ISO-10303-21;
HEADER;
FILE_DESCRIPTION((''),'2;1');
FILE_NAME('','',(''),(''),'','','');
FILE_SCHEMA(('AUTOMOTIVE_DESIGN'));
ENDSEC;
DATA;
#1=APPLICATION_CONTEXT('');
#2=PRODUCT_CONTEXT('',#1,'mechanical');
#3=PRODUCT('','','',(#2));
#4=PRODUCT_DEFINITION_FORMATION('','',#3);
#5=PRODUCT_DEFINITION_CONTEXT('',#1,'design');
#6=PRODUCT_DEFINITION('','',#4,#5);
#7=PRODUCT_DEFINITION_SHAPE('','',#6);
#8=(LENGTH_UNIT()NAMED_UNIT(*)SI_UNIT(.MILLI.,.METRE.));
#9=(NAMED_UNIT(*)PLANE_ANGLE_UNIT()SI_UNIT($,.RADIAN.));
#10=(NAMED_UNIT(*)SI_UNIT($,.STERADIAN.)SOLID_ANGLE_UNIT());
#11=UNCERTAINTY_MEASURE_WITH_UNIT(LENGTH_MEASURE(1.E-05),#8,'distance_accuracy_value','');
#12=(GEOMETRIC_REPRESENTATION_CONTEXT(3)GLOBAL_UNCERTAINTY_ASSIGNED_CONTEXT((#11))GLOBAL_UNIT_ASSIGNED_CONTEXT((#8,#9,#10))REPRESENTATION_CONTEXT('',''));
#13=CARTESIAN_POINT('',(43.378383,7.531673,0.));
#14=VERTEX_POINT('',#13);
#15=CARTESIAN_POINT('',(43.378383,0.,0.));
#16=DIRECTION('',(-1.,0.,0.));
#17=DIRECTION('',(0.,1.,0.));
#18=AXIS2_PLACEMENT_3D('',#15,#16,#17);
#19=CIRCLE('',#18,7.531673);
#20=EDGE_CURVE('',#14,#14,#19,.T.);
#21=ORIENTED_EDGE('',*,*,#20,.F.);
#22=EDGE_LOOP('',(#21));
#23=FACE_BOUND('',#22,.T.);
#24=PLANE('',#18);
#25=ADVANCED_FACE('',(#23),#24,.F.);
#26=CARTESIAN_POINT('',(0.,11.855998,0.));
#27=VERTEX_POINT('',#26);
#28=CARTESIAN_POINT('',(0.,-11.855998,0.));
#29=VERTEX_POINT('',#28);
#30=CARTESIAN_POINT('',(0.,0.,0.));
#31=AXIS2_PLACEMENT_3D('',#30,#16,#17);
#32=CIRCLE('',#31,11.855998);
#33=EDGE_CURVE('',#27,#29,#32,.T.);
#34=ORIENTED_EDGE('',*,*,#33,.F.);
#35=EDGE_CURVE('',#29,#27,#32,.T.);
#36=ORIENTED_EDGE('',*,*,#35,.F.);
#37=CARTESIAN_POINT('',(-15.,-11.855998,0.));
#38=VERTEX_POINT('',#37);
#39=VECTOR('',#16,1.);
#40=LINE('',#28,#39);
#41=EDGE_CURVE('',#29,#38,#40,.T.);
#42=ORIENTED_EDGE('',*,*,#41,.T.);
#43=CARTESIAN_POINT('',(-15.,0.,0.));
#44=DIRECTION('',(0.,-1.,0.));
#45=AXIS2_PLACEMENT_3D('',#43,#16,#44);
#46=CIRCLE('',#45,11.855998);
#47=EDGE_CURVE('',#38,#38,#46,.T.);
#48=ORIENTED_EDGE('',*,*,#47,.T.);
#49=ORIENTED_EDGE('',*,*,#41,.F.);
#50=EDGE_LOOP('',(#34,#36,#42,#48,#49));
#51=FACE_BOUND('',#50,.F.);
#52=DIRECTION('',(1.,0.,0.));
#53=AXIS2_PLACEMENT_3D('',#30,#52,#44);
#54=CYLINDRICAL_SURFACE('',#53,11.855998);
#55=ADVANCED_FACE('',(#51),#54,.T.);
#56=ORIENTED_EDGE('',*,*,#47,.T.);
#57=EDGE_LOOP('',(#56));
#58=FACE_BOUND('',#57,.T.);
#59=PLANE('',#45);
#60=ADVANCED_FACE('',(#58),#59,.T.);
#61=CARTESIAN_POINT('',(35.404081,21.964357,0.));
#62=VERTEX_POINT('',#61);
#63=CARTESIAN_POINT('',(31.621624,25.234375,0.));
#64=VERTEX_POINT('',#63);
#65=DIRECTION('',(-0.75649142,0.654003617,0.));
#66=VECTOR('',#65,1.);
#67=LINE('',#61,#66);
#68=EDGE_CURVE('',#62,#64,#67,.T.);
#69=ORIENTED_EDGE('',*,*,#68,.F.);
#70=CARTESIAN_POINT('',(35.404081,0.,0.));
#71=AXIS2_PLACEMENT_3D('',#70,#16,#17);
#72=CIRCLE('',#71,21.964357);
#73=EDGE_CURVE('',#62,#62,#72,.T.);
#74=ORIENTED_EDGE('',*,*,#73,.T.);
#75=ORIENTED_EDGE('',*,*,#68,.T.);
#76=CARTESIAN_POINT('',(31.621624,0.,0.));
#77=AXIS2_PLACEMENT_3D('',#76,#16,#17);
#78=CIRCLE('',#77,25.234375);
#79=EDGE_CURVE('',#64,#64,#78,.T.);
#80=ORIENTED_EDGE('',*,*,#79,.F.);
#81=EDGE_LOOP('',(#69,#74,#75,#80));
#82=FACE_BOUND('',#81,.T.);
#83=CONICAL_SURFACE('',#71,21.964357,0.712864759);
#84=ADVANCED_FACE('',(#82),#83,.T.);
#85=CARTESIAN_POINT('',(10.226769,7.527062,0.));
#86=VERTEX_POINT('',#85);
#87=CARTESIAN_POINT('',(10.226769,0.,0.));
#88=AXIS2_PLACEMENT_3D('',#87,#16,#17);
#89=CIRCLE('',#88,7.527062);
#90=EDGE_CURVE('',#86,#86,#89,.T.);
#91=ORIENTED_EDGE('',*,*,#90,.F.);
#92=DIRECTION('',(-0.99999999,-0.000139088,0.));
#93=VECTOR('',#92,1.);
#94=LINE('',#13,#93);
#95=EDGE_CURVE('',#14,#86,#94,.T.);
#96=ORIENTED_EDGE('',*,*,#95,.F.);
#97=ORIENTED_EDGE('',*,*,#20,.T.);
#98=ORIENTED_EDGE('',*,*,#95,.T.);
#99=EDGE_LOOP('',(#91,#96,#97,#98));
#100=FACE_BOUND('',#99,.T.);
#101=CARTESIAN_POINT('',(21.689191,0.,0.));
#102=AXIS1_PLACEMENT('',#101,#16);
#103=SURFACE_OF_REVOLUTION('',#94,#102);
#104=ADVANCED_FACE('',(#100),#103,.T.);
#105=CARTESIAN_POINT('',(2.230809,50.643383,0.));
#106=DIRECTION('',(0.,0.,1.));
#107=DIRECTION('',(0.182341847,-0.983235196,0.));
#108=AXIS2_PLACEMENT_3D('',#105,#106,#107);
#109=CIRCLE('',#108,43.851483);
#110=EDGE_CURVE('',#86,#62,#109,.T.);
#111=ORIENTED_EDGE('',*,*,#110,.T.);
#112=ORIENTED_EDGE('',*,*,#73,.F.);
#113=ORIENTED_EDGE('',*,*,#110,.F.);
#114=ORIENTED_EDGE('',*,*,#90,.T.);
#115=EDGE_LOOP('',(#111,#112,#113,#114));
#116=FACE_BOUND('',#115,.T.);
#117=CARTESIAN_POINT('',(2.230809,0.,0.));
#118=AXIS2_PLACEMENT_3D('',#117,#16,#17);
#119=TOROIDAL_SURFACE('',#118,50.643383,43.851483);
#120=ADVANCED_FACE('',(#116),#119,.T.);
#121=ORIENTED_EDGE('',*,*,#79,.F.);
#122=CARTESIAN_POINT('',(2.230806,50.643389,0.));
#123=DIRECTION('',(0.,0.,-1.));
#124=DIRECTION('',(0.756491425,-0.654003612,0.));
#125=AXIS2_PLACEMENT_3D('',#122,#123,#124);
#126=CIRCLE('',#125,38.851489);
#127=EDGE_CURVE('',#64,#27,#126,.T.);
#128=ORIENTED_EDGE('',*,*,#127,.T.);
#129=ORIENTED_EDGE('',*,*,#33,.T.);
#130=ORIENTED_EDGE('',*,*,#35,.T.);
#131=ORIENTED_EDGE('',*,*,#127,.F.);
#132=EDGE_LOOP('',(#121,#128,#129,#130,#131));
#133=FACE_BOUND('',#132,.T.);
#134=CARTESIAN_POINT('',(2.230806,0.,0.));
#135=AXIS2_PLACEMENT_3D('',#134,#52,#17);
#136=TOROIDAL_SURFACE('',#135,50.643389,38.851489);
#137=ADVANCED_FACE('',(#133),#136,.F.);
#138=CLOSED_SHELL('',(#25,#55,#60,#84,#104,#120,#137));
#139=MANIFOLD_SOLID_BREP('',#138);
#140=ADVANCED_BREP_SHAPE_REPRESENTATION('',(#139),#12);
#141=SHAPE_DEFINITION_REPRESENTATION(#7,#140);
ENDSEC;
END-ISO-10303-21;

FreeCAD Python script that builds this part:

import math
import FreeCAD as App
import Part
import Sketcher

V = App.Vector
Q = App.Units.Quantity

doc = App.newDocument("Part")
body = doc.addObject("PartDesign::Body", "Body")

sketch1 = body.newObject("Sketcher::SketchObject", "Sketch")
sketch1.AttachmentSupport = (doc.getObject("XY_Plane"), [""])
sketch1.MapMode = "FlatFace"
sketch1.addGeometry([
    Part.LineSegment(V(0, 0, 0), V(43.4, 0, 0)),
    Part.LineSegment(V(43.4, 0, 0), V(43.4, 7.5, 0)),
    Part.LineSegment(V(43.4, 7.5, 0), V(10.2, 7.5, 0)),
    Part.ArcOfCircle(Part.Circle(V(2.2, 50.6, 0), V(0, 0, 1), 43.9), math.radians(-79), math.radians(-41)),
    Part.LineSegment(V(35.4, 22, 0), V(31.6, 25.2, 0)),
    Part.ArcOfCircle(Part.Circle(V(2.2, 50.6, 0), V(0, 0, 1), 38.9), math.radians(-93), math.radians(-41)),
    Part.LineSegment(V(0, 11.9, 0), V(0, 0, 0)),
], False)
sketch1.addConstraint([
    Sketcher.Constraint("Coincident", 0, 2, 1, 1),
    Sketcher.Constraint("Coincident", 1, 2, 2, 1),
    Sketcher.Constraint("Coincident", 2, 2, 3, 1),
    Sketcher.Constraint("Coincident", 3, 2, 4, 1),
    Sketcher.Constraint("Coincident", 4, 2, 5, 2),
    Sketcher.Constraint("Coincident", 5, 1, 6, 1),
    Sketcher.Constraint("Coincident", 6, 2, 0, 1),
    Sketcher.Constraint("Horizontal", 0),
    Sketcher.Constraint("Vertical", 1),
    Sketcher.Constraint("Vertical", 6),
    Sketcher.Constraint("Coincident", 6, 2, -1, 1),
    Sketcher.Constraint("Coincident", 5, 3, 3, 3),
    Sketcher.Constraint("Distance", 4, Q("5 mm")),
    Sketcher.Constraint("Radius", 5, Q("38.851489 mm")),
    Sketcher.Constraint("DistanceX", 3, 2, 1, 2, Q("7.974302 mm")),
    Sketcher.Constraint("DistanceX", 0, 1, 0, 2, Q("43.378383 mm")),
    Sketcher.Constraint("DistanceY", 1, 1, 1, 2, Q("7.531673 mm")),
    Sketcher.Constraint("DistanceY", 6, 2, 6, 1, Q("11.855998 mm")),
    Sketcher.Constraint("DistanceX", -1, 1, 3, 3, Q("2.230809 mm")),
    Sketcher.Constraint("DistanceX", -1, 1, 2, 2, Q("10.226769 mm")),
    Sketcher.Constraint("DistanceY", 3, 2, 4, 2, Q("3.270018 mm")),
])
revolution = body.newObject("PartDesign::Revolution", "Revolution")
revolution.Profile = sketch1
revolution.ReferenceAxis = (sketch1, ["H_Axis"])
revolution.Angle = 360

sketch2 = body.newObject("Sketcher::SketchObject", "Sketch001")
sketch2.AttachmentSupport = (doc.getObject("YZ_Plane"), [""])
sketch2.MapMode = "FlatFace"
sketch2.addGeometry(Part.Circle(V(0, 0, 0), V(0, 0, 1), 12), False)
sketch2.addConstraint([
    Sketcher.Constraint("Coincident", 0, 3, -1, 1),
    Sketcher.Constraint("Diameter", 0, Q("23.711996 mm")),
])
pad1 = body.newObject("PartDesign::Pad", "Pad")
pad1.Profile = sketch2
pad1.Length = 15
pad1.Reversed = True

doc.recompute()
